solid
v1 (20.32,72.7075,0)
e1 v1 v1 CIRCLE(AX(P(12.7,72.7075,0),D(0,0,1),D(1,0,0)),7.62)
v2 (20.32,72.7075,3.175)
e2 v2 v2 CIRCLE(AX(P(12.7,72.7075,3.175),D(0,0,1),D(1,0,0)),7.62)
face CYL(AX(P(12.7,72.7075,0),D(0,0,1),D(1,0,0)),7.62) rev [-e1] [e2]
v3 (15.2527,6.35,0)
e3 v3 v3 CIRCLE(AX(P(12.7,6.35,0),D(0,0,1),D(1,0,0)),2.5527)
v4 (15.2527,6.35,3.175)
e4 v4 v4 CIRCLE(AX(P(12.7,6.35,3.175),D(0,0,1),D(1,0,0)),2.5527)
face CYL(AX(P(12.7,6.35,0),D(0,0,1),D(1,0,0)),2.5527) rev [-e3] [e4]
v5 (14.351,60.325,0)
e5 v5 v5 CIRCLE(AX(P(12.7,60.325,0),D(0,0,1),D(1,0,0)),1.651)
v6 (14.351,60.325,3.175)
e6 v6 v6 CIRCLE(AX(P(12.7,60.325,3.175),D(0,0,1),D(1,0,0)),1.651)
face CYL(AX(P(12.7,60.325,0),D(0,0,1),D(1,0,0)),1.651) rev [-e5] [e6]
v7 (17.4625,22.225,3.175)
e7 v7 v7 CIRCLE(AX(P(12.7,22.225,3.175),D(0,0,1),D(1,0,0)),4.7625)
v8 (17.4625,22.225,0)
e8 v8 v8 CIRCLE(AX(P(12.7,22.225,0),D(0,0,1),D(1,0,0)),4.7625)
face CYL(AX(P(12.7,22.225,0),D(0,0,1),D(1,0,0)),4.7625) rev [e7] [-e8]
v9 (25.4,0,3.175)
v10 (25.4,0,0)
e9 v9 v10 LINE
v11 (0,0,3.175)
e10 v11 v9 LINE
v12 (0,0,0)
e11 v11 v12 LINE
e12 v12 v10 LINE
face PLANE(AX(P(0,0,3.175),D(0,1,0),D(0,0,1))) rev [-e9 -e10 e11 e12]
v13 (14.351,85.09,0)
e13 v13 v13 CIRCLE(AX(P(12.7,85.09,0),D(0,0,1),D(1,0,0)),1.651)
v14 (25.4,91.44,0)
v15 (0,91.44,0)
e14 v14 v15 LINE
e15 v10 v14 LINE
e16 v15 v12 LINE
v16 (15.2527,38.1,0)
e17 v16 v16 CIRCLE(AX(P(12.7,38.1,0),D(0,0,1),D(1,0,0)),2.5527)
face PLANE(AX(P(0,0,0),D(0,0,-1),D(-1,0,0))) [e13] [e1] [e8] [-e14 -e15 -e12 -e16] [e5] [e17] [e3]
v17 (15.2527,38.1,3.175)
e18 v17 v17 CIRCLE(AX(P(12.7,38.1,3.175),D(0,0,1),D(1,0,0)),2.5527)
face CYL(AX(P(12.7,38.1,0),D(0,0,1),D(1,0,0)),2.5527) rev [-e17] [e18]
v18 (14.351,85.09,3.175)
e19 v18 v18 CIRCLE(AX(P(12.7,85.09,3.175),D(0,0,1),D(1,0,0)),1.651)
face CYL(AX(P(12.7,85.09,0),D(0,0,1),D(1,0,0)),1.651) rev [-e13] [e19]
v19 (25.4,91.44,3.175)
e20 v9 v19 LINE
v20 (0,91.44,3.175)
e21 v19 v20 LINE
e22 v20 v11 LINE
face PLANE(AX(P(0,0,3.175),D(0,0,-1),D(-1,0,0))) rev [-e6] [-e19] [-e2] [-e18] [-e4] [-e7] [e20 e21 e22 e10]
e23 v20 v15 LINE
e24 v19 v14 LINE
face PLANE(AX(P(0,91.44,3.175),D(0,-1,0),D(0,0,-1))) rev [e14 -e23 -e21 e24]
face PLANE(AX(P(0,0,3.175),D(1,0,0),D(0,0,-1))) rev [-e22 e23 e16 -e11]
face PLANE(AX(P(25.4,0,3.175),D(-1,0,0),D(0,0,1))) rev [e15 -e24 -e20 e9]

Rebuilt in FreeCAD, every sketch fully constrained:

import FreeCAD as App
import Part
import Sketcher

V = App.Vector
Q = App.Units.Quantity

doc = App.newDocument("Part")
body = doc.addObject("PartDesign::Body", "Body")

# Sketch on XY plane
sketch1 = body.newObject("Sketcher::SketchObject", "Sketch")
sketch1.AttachmentSupport = (doc.getObject("XY_Plane"), [""])
sketch1.MapMode = "FlatFace"
sketch1.addGeometry([
    Part.LineSegment(V(0, 91.44, 0), V(0, 0, 0)),
    Part.LineSegment(V(0, 0, 0), V(25.4, 0, 0)),
    Part.LineSegment(V(25.4, 0, 0), V(25.4, 91.44, 0)),
    Part.LineSegment(V(25.4, 91.44, 0), V(0, 91.44, 0)),
], False)
sketch1.addConstraint([
    Sketcher.Constraint("Coincident", 0, 2, 1, 1),
    Sketcher.Constraint("Coincident", 1, 2, 2, 1),
    Sketcher.Constraint("Coincident", 2, 2, 3, 1),
    Sketcher.Constraint("Coincident", 3, 2, 0, 1),
    Sketcher.Constraint("Vertical", 0),
    Sketcher.Constraint("Horizontal", 1),
    Sketcher.Constraint("Vertical", 2),
    Sketcher.Constraint("Horizontal", 3),
    Sketcher.Constraint("Coincident", 0, 2, -1, 1),
    Sketcher.Constraint("DistanceX", 1, 1, 1, 2, Q("1 in")),
    Sketcher.Constraint("DistanceY", 0, 2, 0, 1, Q("3.6 in")),
])
pad1 = body.newObject("PartDesign::Pad", "Pad")
pad1.Profile = sketch1
pad1.Length = Q("0.125 in")

# Sketch on XY plane
sketch2 = body.newObject("Sketcher::SketchObject", "Sketch001")
sketch2.AttachmentSupport = (doc.getObject("XY_Plane"), [""])
sketch2.MapMode = "FlatFace"
sketch2.AttachmentOffset = App.Placement(V(0, 0, 0.125 * 25.4), App.Rotation())
sketch2.addGeometry([
    Part.Circle(V(12.7, 6.35, 0), V(0, 0, 1), 2.5527),
    Part.Circle(V(12.7, 38.1, 0), V(0, 0, 1), 2.5527),
    Part.Circle(V(12.7, 22.225, 0), V(0, 0, 1), 4.7625),
], False)
sketch2.addConstraint([
    Sketcher.Constraint("Equal", 0, 1),
    Sketcher.Constraint("Vertical", 0, 3, 1, 3),
    Sketcher.Constraint("Vertical", 1, 3, 2, 3),
    Sketcher.Constraint("Diameter", 0, Q("0.201 in")),
    Sketcher.Constraint("Diameter", 2, Q("0.375 in")),
    Sketcher.Constraint("DistanceX", -1, 1, 0, 3, Q("0.5 in")),
    Sketcher.Constraint("DistanceY", -1, 1, 1, 3, Q("1.5 in")),
    Sketcher.Constraint("DistanceY", -1, 1, 0, 3, Q("0.25 in")),
    Sketcher.Constraint("DistanceY", -1, 1, 2, 3, Q("0.875 in")),
])
pocket1 = body.newObject("PartDesign::Pocket", "Pocket")
pocket1.Profile = sketch2
pocket1.Length = Q("0.125 in")

# Sketch on XY plane
sketch3 = body.newObject("Sketcher::SketchObject", "Sketch002")
sketch3.AttachmentSupport = (doc.getObject("XY_Plane"), [""])
sketch3.MapMode = "FlatFace"
sketch3.AttachmentOffset = App.Placement(V(0, 0, 0.125 * 25.4), App.Rotation())
sketch3.addGeometry([
    Part.Circle(V(12.7, 85.09, 0), V(0, 0, 1), 1.651),
    Part.Circle(V(12.7, 60.325, 0), V(0, 0, 1), 1.651),
    Part.Circle(V(12.7, 72.7075, 0), V(0, 0, 1), 7.62),
], False)
sketch3.addConstraint([
    Sketcher.Constraint("Equal", 0, 1),
    Sketcher.Constraint("Vertical", 0, 3, 1, 3),
    Sketcher.Constraint("Vertical", 1, 3, 2, 3),
    Sketcher.Constraint("Diameter", 2, Q("0.6 in")),
    Sketcher.Constraint("Diameter", 0, Q("0.13 in")),
    Sketcher.Constraint("DistanceX", -1, 1, 0, 3, Q("0.5 in")),
    Sketcher.Constraint("DistanceY", -1, 1, 0, 3, Q("3.35 in")),
    Sketcher.Constraint("DistanceY", -1, 1, 1, 3, Q("2.375 in")),
    Sketcher.Constraint("DistanceY", -1, 1, 2, 3, Q("2.8625 in")),
])
pocket2 = body.newObject("PartDesign::Pocket", "Pocket001")
pocket2.Profile = sketch3
pocket2.Length = Q("0.125 in")

doc.recompute()
